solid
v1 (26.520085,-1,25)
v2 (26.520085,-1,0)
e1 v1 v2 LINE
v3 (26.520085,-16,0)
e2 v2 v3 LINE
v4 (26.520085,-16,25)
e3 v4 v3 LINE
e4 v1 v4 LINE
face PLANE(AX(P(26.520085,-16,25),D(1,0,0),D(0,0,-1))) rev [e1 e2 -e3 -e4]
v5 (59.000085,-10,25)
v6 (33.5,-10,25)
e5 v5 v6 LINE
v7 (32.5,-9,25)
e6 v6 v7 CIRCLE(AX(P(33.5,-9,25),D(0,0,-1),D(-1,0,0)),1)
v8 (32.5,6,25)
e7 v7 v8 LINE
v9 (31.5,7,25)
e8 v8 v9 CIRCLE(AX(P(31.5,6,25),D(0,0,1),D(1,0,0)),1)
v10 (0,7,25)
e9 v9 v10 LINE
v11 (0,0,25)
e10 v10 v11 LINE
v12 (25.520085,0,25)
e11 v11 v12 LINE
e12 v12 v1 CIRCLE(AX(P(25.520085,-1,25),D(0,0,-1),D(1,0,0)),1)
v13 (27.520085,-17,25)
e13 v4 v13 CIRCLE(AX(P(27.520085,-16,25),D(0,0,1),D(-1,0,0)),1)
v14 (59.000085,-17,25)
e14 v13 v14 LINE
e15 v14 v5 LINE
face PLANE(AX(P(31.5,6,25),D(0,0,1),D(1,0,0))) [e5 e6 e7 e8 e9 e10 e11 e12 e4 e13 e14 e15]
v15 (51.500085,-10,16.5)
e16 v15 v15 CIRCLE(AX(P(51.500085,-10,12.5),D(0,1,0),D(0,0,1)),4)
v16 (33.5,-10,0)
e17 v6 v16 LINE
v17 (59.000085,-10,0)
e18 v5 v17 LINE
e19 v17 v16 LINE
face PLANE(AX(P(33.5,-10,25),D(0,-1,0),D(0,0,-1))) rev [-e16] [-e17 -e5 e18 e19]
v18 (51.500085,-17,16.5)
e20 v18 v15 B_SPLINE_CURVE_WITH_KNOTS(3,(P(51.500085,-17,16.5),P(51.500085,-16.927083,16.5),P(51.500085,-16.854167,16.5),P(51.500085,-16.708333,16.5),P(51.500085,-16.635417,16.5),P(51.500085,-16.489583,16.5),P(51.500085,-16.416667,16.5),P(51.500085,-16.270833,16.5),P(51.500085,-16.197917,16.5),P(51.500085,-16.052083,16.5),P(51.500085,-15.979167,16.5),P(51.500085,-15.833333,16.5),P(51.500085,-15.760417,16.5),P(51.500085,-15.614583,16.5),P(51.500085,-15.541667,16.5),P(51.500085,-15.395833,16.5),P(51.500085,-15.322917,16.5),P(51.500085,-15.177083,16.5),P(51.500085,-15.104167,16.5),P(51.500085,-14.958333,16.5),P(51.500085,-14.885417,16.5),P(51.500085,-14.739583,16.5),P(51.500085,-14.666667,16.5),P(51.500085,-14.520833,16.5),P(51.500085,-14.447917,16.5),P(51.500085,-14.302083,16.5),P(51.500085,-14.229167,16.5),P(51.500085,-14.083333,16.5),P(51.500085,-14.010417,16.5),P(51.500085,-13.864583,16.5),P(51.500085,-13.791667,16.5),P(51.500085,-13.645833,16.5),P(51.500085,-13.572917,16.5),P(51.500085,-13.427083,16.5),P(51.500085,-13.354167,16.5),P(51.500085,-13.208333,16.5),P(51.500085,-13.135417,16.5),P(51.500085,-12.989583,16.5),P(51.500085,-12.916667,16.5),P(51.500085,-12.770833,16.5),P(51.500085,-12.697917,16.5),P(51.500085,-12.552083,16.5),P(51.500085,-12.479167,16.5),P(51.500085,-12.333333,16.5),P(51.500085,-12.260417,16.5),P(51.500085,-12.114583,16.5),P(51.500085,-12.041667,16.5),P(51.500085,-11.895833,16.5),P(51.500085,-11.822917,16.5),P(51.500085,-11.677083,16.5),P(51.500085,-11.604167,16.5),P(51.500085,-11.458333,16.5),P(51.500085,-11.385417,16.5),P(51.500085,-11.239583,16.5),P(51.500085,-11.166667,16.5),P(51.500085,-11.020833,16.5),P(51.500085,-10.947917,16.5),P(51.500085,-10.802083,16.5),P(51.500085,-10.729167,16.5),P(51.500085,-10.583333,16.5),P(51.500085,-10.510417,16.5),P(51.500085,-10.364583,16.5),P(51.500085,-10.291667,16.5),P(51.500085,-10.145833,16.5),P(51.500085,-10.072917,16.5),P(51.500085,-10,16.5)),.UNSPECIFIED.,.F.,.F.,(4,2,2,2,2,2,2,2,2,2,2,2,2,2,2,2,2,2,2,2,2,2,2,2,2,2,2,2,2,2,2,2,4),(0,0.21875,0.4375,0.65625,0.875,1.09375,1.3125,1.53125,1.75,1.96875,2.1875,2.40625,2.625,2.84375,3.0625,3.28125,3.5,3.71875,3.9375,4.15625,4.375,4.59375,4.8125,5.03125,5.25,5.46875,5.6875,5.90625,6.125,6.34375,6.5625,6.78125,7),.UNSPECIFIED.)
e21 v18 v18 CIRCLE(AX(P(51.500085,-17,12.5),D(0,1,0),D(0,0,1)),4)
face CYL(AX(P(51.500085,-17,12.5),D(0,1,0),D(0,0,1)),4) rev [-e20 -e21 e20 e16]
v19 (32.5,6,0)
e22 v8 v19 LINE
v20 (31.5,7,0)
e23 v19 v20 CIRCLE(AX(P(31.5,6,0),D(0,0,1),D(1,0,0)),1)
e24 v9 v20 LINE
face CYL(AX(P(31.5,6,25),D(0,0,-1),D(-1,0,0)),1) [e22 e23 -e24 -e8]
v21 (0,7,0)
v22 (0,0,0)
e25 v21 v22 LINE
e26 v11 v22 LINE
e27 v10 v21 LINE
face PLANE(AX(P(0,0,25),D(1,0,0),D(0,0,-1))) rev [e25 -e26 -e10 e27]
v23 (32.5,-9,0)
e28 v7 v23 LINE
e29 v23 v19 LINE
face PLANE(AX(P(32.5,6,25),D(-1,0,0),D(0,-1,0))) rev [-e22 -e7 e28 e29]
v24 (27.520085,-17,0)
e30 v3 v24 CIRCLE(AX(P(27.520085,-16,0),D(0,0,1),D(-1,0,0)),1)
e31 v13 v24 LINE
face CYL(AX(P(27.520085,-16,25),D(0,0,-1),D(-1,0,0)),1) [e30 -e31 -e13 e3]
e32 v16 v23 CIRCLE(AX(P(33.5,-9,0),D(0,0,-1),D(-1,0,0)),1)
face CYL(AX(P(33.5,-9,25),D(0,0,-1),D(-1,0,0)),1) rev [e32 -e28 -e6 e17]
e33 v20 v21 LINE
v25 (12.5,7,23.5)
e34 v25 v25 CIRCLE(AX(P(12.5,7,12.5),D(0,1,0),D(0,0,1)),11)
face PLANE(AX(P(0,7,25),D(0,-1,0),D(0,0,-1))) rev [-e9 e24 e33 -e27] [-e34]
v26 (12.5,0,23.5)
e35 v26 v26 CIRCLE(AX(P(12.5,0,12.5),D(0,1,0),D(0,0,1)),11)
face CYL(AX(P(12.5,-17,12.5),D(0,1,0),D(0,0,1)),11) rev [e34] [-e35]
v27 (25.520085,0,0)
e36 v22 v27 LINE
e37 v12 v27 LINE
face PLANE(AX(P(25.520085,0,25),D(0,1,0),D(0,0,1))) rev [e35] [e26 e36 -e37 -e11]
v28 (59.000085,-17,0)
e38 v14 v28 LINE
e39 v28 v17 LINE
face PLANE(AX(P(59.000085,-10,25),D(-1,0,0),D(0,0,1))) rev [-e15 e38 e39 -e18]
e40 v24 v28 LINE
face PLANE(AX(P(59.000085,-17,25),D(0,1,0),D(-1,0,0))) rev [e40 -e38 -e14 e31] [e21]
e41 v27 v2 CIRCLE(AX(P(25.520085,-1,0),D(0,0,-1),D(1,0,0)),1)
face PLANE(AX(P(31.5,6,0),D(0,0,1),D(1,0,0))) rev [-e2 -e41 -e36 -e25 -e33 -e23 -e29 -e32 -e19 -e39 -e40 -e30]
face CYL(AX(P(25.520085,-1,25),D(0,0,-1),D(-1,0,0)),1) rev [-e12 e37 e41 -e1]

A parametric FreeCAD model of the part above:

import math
import FreeCAD as App
import Part
import Sketcher

V = App.Vector
Q = App.Units.Quantity

doc = App.newDocument("Part")
body = doc.addObject("PartDesign::Body", "Body")

# Sketch on XY plane
sketch1 = body.newObject("Sketcher::SketchObject", "Sketch")
sketch1.AttachmentSupport = (doc.getObject("XY_Plane"), [""])
sketch1.MapMode = "FlatFace"
sketch1.addGeometry(Part.LineSegment(V(0, 7, 0), V(0, 0, 0)), False)
sketch1.addGeometry(Part.LineSegment(V(0, 0, 0), V(25.5, 0, 0)), False)
sketch1.addGeometry(Part.ArcOfCircle(Part.Circle(V(25.5, -1, 0), V(0, 0, 1), 1), math.radians(0), math.radians(90)), False)
sketch1.addGeometry(Part.LineSegment(V(26.5, -1, 0), V(26.5, -16, 0)), False)
sketch1.addGeometry(Part.ArcOfCircle(Part.Circle(V(27.5, -16, 0), V(0, 0, 1), 1), math.radians(180), math.radians(270)), False)
sketch1.addGeometry(Part.LineSegment(V(27.5, -17, 0), V(59, -17, 0)), False)
sketch1.addGeometry(Part.LineSegment(V(59, -17, 0), V(59, -10, 0)), False)
sketch1.addGeometry(Part.LineSegment(V(59, -10, 0), V(33.5, -10, 0)), False)
sketch1.addGeometry(Part.ArcOfCircle(Part.Circle(V(33.5, -9, 0), V(0, 0, 1), 1), math.radians(-180), math.radians(-90)), False)
sketch1.addGeometry(Part.LineSegment(V(32.5, -9, 0), V(32.5, 6, 0)), False)
sketch1.addGeometry(Part.ArcOfCircle(Part.Circle(V(31.5, 6, 0), V(0, 0, 1), 1), math.radians(0), math.radians(90)), False)
sketch1.addGeometry(Part.LineSegment(V(31.5, 7, 0), V(0, 7, 0)), False)
sketch1.addConstraint(Sketcher.Constraint("Coincident", 0, 2, 1, 1))
sketch1.addConstraint(Sketcher.Constraint("Tangent", 1, 2, 2, 2))
sketch1.addConstraint(Sketcher.Constraint("Tangent", 2, 1, 3, 1))
sketch1.addConstraint(Sketcher.Constraint("Tangent", 3, 2, 4, 1))
sketch1.addConstraint(Sketcher.Constraint("Tangent", 4, 2, 5, 1))
sketch1.addConstraint(Sketcher.Constraint("Coincident", 5, 2, 6, 1))
sketch1.addConstraint(Sketcher.Constraint("Coincident", 6, 2, 7, 1))
sketch1.addConstraint(Sketcher.Constraint("Tangent", 7, 2, 8, 2))
sketch1.addConstraint(Sketcher.Constraint("Tangent", 8, 1, 9, 1))
sketch1.addConstraint(Sketcher.Constraint("Tangent", 9, 2, 10, 1))
sketch1.addConstraint(Sketcher.Constraint("Tangent", 10, 2, 11, 1))
sketch1.addConstraint(Sketcher.Constraint("Coincident", 11, 2, 0, 1))
sketch1.addConstraint(Sketcher.Constraint("Vertical", 0))
sketch1.addConstraint(Sketcher.Constraint("Horizontal", 1))
sketch1.addConstraint(Sketcher.Constraint("Vertical", 3))
sketch1.addConstraint(Sketcher.Constraint("Horizontal", 5))
sketch1.addConstraint(Sketcher.Constraint("Vertical", 6))
sketch1.addConstraint(Sketcher.Constraint("Horizontal", 7))
sketch1.addConstraint(Sketcher.Constraint("Vertical", 9))
sketch1.addConstraint(Sketcher.Constraint("Horizontal", 11))
sketch1.addConstraint(Sketcher.Constraint("Coincident", 0, 2, -1, 1))
sketch1.addConstraint(Sketcher.Constraint("Equal", 2, 4))
sketch1.addConstraint(Sketcher.Constraint("Equal", 4, 8))
sketch1.addConstraint(Sketcher.Constraint("Equal", 8, 10))
sketch1.addConstraint(Sketcher.Constraint("Equal", 0, 6))
sketch1.addConstraint(Sketcher.Constraint("Radius", 2, Q("1 mm")))
sketch1.addConstraint(Sketcher.Constraint("DistanceY", 0, 2, 0, 1, Q("7 mm")))
sketch1.addConstraint(Sketcher.Constraint("DistanceY", 3, 2, 3, 1, Q("15 mm")))
sketch1.addConstraint(Sketcher.Constraint("DistanceX", 11, 2, 11, 1, Q("31.5 mm")))
sketch1.addConstraint(Sketcher.Constraint("DistanceX", 5, 1, 5, 2, Q("31.48 mm")))
sketch1.addConstraint(Sketcher.Constraint("DistanceX", 1, 1, 1, 2, Q("25.520085 mm")))
pad1 = body.newObject("PartDesign::Pad", "Pad")
pad1.Profile = sketch1
pad1.Length = 25

# Sketch on XZ plane
sketch2 = body.newObject("Sketcher::SketchObject", "Sketch001")
sketch2.AttachmentSupport = (doc.getObject("XZ_Plane"), [""])
sketch2.MapMode = "FlatFace"
sketch2.AttachmentOffset = App.Placement(V(0, 0, -7), App.Rotation())
sketch2.addGeometry(Part.Circle(V(12, 12, 0), V(0, 0, 1), 11), False)
sketch2.addConstraint(Sketcher.Constraint("Diameter", 0, Q("22 mm")))
sketch2.addConstraint(Sketcher.Constraint("DistanceX", -1, 1, 0, 3, Q("12.5 mm")))
sketch2.addConstraint(Sketcher.Constraint("DistanceY", -1, 1, 0, 3, Q("12.5 mm")))
pocket1 = body.newObject("PartDesign::Pocket", "Pocket")
pocket1.Profile = sketch2
pocket1.Type = "ThroughAll"
pocket1.Reversed = True

# Sketch on XZ plane
sketch3 = body.newObject("Sketcher::SketchObject", "Sketch002")
sketch3.AttachmentSupport = (doc.getObject("XZ_Plane"), [""])
sketch3.MapMode = "FlatFace"
sketch3.AttachmentOffset = App.Placement(V(0, 0, 10), App.Rotation())
sketch3.addGeometry(Part.Circle(V(51.5, 12.5, 0), V(0, 0, 1), 4), False)
sketch3.addConstraint(Sketcher.Constraint("Diameter", 0, Q("8 mm")))
sketch3.addConstraint(Sketcher.Constraint("DistanceY", -1, 1, 0, 3, Q("12.5 mm")))
sketch3.addConstraint(Sketcher.Constraint("DistanceX", -1, 1, 0, 3, Q("51.500085 mm")))
pocket2 = body.newObject("PartDesign::Pocket", "Pocket001")
pocket2.Profile = sketch3
pocket2.Type = "ThroughAll"
pocket2.Reversed = True

doc.recompute()
